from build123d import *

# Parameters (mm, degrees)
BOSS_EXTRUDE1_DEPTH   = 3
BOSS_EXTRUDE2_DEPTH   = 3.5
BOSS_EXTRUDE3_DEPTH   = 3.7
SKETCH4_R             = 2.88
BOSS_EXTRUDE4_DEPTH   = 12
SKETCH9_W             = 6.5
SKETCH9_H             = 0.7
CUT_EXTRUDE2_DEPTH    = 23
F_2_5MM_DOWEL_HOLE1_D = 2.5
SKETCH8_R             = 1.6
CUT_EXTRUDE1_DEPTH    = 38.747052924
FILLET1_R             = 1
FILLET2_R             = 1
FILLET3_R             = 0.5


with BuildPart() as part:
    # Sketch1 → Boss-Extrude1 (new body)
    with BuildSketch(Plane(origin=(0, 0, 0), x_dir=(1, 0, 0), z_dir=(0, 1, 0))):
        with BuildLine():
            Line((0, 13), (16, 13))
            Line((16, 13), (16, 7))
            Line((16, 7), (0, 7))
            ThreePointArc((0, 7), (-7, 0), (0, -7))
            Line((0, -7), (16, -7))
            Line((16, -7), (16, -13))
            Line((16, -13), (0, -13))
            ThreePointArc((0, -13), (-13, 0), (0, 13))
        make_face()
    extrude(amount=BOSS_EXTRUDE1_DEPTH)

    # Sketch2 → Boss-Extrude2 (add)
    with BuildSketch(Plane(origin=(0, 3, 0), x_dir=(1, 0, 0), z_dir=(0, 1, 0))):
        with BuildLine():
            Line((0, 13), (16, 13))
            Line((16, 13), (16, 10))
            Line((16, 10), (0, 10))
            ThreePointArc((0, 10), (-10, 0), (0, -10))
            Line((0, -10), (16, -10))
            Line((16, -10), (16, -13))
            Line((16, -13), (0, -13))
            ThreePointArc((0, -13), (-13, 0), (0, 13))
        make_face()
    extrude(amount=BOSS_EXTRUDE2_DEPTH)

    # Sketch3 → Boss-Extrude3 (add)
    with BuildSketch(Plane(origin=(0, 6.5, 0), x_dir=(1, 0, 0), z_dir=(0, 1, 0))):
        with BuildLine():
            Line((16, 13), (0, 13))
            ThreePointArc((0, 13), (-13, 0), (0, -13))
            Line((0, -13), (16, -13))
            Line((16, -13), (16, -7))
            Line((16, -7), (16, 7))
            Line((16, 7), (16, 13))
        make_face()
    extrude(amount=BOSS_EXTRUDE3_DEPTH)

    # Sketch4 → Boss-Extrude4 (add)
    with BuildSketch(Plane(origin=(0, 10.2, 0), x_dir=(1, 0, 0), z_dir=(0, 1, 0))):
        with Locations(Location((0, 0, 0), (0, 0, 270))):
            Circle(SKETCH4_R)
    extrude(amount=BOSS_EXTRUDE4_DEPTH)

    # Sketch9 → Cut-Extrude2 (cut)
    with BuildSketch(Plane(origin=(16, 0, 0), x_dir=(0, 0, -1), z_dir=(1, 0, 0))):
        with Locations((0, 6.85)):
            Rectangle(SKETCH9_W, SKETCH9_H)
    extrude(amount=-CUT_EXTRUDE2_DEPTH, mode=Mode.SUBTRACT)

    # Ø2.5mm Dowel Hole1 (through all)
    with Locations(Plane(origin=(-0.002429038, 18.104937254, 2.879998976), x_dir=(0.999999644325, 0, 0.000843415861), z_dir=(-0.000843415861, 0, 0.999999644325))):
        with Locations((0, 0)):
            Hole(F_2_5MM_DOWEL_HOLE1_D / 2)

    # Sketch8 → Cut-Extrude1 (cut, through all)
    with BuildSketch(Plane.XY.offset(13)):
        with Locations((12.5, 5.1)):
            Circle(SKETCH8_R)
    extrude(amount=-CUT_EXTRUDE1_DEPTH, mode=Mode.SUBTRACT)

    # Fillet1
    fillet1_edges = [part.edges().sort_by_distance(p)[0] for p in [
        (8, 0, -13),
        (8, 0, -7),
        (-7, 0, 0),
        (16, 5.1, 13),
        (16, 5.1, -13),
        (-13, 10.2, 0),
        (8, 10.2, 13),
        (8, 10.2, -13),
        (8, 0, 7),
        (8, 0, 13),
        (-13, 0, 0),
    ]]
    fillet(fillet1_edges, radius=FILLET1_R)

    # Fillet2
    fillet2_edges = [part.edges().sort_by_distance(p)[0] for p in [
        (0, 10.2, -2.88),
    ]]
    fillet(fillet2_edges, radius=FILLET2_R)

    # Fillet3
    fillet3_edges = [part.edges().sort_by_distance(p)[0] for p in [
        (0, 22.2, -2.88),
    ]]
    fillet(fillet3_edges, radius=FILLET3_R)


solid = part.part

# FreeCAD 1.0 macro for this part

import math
import FreeCAD as App
import Part
import Sketcher
from FreeCAD import Vector


def edges_at(feature, points):
    """Names of the edges that pass closest to the given points."""
    edges = feature.Shape.Edges
    near = lambda p: min(range(len(edges)), key=lambda i: edges[i].distToShape(Part.Vertex(*p))[0])
    return sorted({f"Edge{near(p) + 1}" for p in points})

doc = App.newDocument("Part")
body = doc.addObject("PartDesign::Body", "Body")

# Sketch on XZ plane
sketch1 = body.newObject("Sketcher::SketchObject", "Sketch")
sketch1.AttachmentSupport = (doc.getObject("XZ_Plane"), [""])
sketch1.MapMode = "FlatFace"
sketch1.addGeometry([
    Part.LineSegment(Vector(16, -13, 0), Vector(0, -13, 0)),  # 0
    Part.ArcOfCircle(Part.Circle(Vector(0, 0, 0), Vector(0, 0, 1), 13), math.radians(90), math.radians(270)),  # 1
    Part.LineSegment(Vector(0, 13, 0), Vector(16, 13, 0)),  # 2
    Part.LineSegment(Vector(16, 13, 0), Vector(16, 7, 0)),  # 3
    Part.LineSegment(Vector(16, 7, 0), Vector(0, 7, 0)),  # 4
    Part.ArcOfCircle(Part.Circle(Vector(0, 0, 0), Vector(0, 0, 1), 7), math.radians(90), math.radians(270)),  # 5
    Part.LineSegment(Vector(0, -7, 0), Vector(16, -7, 0)),  # 6
    Part.LineSegment(Vector(16, -7, 0), Vector(16, -13, 0)),  # 7
], False)
sketch1.addConstraint([
    Sketcher.Constraint("Tangent", 0, 2, 1, 2),
    Sketcher.Constraint("Tangent", 1, 1, 2, 1),
    Sketcher.Constraint("Coincident", 2, 2, 3, 1),
    Sketcher.Constraint("Coincident", 3, 2, 4, 1),
    Sketcher.Constraint("Tangent", 4, 2, 5, 1),
    Sketcher.Constraint("Tangent", 5, 2, 6, 1),
    Sketcher.Constraint("Coincident", 6, 2, 7, 1),
    Sketcher.Constraint("Coincident", 7, 2, 0, 1),
    Sketcher.Constraint("Horizontal", 0),
    Sketcher.Constraint("Horizontal", 2),
    Sketcher.Constraint("Vertical", 3),
    Sketcher.Constraint("Horizontal", 4),
    Sketcher.Constraint("Horizontal", 6),
    Sketcher.Constraint("Vertical", 7),
    Sketcher.Constraint("Coincident", 1, 3, -1, 1),
    Sketcher.Constraint("Coincident", 5, 3, -1, 1),
    Sketcher.Constraint("Vertical", 3, 2, 6, 2),
    Sketcher.Constraint("Radius", 1, 13.0),
    Sketcher.Constraint("Radius", 5, 7.0),
    Sketcher.Constraint("DistanceX", 0, 2, 0, 1, 16.0),
])
pad1 = body.newObject("PartDesign::Pad", "Pad")
pad1.Profile = sketch1
pad1.Length = 3
pad1.Reversed = True

# Sketch on XZ plane
sketch2 = body.newObject("Sketcher::SketchObject", "Sketch001")
sketch2.AttachmentSupport = (doc.getObject("XZ_Plane"), [""])
sketch2.MapMode = "FlatFace"
sketch2.AttachmentOffset = App.Placement(Vector(0, 0, -3), App.Rotation())
sketch2.addGeometry([
    Part.LineSegment(Vector(16, -13, 0), Vector(0, -13, 0)),  # 0
    Part.ArcOfCircle(Part.Circle(Vector(0, 0, 0), Vector(0, 0, 1), 13), math.radians(90), math.radians(270)),  # 1
    Part.LineSegment(Vector(0, 13, 0), Vector(16, 13, 0)),  # 2
    Part.LineSegment(Vector(16, 13, 0), Vector(16, 10, 0)),  # 3
    Part.LineSegment(Vector(16, 10, 0), Vector(0, 10, 0)),  # 4
    Part.ArcOfCircle(Part.Circle(Vector(0, 0, 0), Vector(0, 0, 1), 10), math.radians(90), math.radians(270)),  # 5
    Part.LineSegment(Vector(0, -10, 0), Vector(16, -10, 0)),  # 6
    Part.LineSegment(Vector(16, -10, 0), Vector(16, -13, 0)),  # 7
], False)
sketch2.addConstraint([
    Sketcher.Constraint("Tangent", 0, 2, 1, 2),
    Sketcher.Constraint("Tangent", 1, 1, 2, 1),
    Sketcher.Constraint("Coincident", 2, 2, 3, 1),
    Sketcher.Constraint("Coincident", 3, 2, 4, 1),
    Sketcher.Constraint("Tangent", 4, 2, 5, 1),
    Sketcher.Constraint("Tangent", 5, 2, 6, 1),
    Sketcher.Constraint("Coincident", 6, 2, 7, 1),
    Sketcher.Constraint("Coincident", 7, 2, 0, 1),
    Sketcher.Constraint("Horizontal", 0),
    Sketcher.Constraint("Horizontal", 2),
    Sketcher.Constraint("Vertical", 3),
    Sketcher.Constraint("Horizontal", 4),
    Sketcher.Constraint("Horizontal", 6),
    Sketcher.Constraint("Vertical", 7),
    Sketcher.Constraint("Coincident", 1, 3, -1, 1),
    Sketcher.Constraint("Coincident", 5, 3, -1, 1),
    Sketcher.Constraint("Vertical", 3, 2, 6, 2),
    Sketcher.Constraint("Radius", 1, 13.0),
    Sketcher.Constraint("Radius", 5, 10.0),
    Sketcher.Constraint("DistanceX", 0, 2, 0, 1, 16.0),
])
pad2 = body.newObject("PartDesign::Pad", "Pad001")
pad2.Profile = sketch2
pad2.Length = 3.5
pad2.Reversed = True

# Sketch on XZ plane
sketch3 = body.newObject("Sketcher::SketchObject", "Sketch002")
sketch3.AttachmentSupport = (doc.getObject("XZ_Plane"), [""])
sketch3.MapMode = "FlatFace"
sketch3.AttachmentOffset = App.Placement(Vector(0, 0, -6.5), App.Rotation())
sketch3.addGeometry([
    Part.LineSegment(Vector(16, -13, 0), Vector(0, -13, 0)),
    Part.ArcOfCircle(Part.Circle(Vector(0, 0, 0), Vector(0, 0, 1), 13), math.radians(90), math.radians(270)),
    Part.LineSegment(Vector(0, 13, 0), Vector(16, 13, 0)),
    Part.LineSegment(Vector(16, 13, 0), Vector(16, -13, 0)),
], False)
sketch3.addConstraint([
    Sketcher.Constraint("Tangent", 0, 2, 1, 2),
    Sketcher.Constraint("Tangent", 1, 1, 2, 1),
    Sketcher.Constraint("Coincident", 2, 2, 3, 1),
    Sketcher.Constraint("Coincident", 3, 2, 0, 1),
    Sketcher.Constraint("Horizontal", 0),
    Sketcher.Constraint("Horizontal", 2),
    Sketcher.Constraint("Vertical", 3),
    Sketcher.Constraint("Coincident", 1, 3, -1, 1),
    Sketcher.Constraint("Radius", 1, 13.0),
    Sketcher.Constraint("DistanceX", 0, 2, 0, 1, 16.0),
])
pad3 = body.newObject("PartDesign::Pad", "Pad002")
pad3.Profile = sketch3
pad3.Length = 3.7
pad3.Reversed = True

# Sketch on XZ plane
sketch4 = body.newObject("Sketcher::SketchObject", "Sketch003")
sketch4.AttachmentSupport = (doc.getObject("XZ_Plane"), [""])
sketch4.MapMode = "FlatFace"
sketch4.AttachmentOffset = App.Placement(Vector(0, 0, -10.2), App.Rotation())
sketch4.addGeometry(Part.Circle(Vector(0, 0, 0), Vector(0, 0, 1), 2.88), False)
sketch4.addConstraint([
    Sketcher.Constraint("Coincident", 0, 3, -1, 1),
    Sketcher.Constraint("Diameter", 0, 5.76),
])
pad4 = body.newObject("PartDesign::Pad", "Pad003")
pad4.Profile = sketch4
pad4.Length = 12
pad4.Reversed = True

# Sketch on YZ plane
sketch5 = body.newObject("Sketcher::SketchObject", "Sketch004")
sketch5.AttachmentSupport = (doc.getObject("YZ_Plane"), [""])
sketch5.MapMode = "FlatFace"
sketch5.AttachmentOffset = App.Placement(Vector(0, 0, 16), App.Rotation())
sketch5.addGeometry([
    Part.LineSegment(Vector(7.2, 3.25, 0), Vector(6.5, 3.25, 0)),
    Part.LineSegment(Vector(6.5, 3.25, 0), Vector(6.5, -3.25, 0)),
    Part.LineSegment(Vector(6.5, -3.25, 0), Vector(7.2, -3.25, 0)),
    Part.LineSegment(Vector(7.2, -3.25, 0), Vector(7.2, 3.25, 0)),
], False)
sketch5.addConstraint([
    Sketcher.Constraint("Coincident", 0, 2, 1, 1),
    Sketcher.Constraint("Coincident", 1, 2, 2, 1),
    Sketcher.Constraint("Coincident", 2, 2, 3, 1),
    Sketcher.Constraint("Coincident", 3, 2, 0, 1),
    Sketcher.Constraint("Horizontal", 0),
    Sketcher.Constraint("Vertical", 1),
    Sketcher.Constraint("Horizontal", 2),
    Sketcher.Constraint("Vertical", 3),
    Sketcher.Constraint("DistanceX", 0, 2, 0, 1, 0.7),
    Sketcher.Constraint("DistanceY", 1, 2, 1, 1, 6.5),
    Sketcher.Constraint("DistanceX", -1, 1, 0, 2, 6.5),
    Sketcher.Constraint("DistanceY", -1, 1, 0, 2, 3.25),
])
pocket1 = body.newObject("PartDesign::Pocket", "Pocket")
pocket1.Profile = sketch5
pocket1.Length = 23

# Sketch on an angled plane
sketch6 = body.newObject("Sketcher::SketchObject", "Sketch005")
sketch6.Placement = App.Placement(Vector(-0.002429, 0, 2.879999), App.Rotation(Vector(0.999999644, 0, 0.000843416), Vector(0, 0.999999999, 0), Vector(-0.000843416, 0, 0.999999644), "ZXY"))
sketch6.addGeometry(Part.Circle(Vector(0, 18.104937, 0), Vector(0, 0, 1), 1.25), False)
sketch6.addConstraint([
    Sketcher.Constraint("PointOnObject", 0, 3, -2),
    Sketcher.Constraint("Diameter", 0, 2.5),
    Sketcher.Constraint("DistanceY", -1, 1, 0, 3, 18.104937),
])
doc.recompute()
hole = body.newObject("PartDesign::Hole", "Hole")
hole.Profile = sketch6
hole.ThreadType = "None"
hole.Diameter = 2.5
hole.DepthType = "ThroughAll"

# Sketch on XY plane
sketch7 = body.newObject("Sketcher::SketchObject", "Sketch006")
sketch7.AttachmentSupport = (doc.getObject("XY_Plane"), [""])
sketch7.MapMode = "FlatFace"
sketch7.AttachmentOffset = App.Placement(Vector(0, 0, 13), App.Rotation())
sketch7.addGeometry(Part.Circle(Vector(12.5, 5.1, 0), Vector(0, 0, 1), 1.6), False)
sketch7.addConstraint([
    Sketcher.Constraint("Diameter", 0, 3.2),
    Sketcher.Constraint("DistanceX", -1, 1, 0, 3, 12.5),
    Sketcher.Constraint("DistanceY", -1, 1, 0, 3, 5.1),
])
pocket2 = body.newObject("PartDesign::Pocket", "Pocket001")
pocket2.Profile = sketch7
pocket2.Type = "ThroughAll"
doc.recompute()

fillet = body.newObject("PartDesign::Fillet", "Fillet")
fillet.Base = (pocket2, edges_at(pocket2, [
    (8, 0, -13),
    (8, 0, -7),
    (-7, 0, 0),
    (16, 5.1, 13),
    (16, 5.1, -13),
    (-13, 10.2, 0),
    (8, 10.2, 13),
    (8, 10.2, -13),
    (8, 0, 7),
    (8, 0, 13),
    (-13, 0, 0),
]))
fillet.Radius = 1
doc.recompute()

fillet2 = body.newObject("PartDesign::Fillet", "Fillet001")
fillet2.Base = (fillet, edges_at(fillet, [(0, 10.2, -2.88)]))
fillet2.Radius = 1
doc.recompute()

fillet3 = body.newObject("PartDesign::Fillet", "Fillet002")
fillet3.Base = (fillet2, edges_at(fillet2, [(0, 22.2, -2.88)]))
fillet3.Radius = 0.5

doc.recompute()
